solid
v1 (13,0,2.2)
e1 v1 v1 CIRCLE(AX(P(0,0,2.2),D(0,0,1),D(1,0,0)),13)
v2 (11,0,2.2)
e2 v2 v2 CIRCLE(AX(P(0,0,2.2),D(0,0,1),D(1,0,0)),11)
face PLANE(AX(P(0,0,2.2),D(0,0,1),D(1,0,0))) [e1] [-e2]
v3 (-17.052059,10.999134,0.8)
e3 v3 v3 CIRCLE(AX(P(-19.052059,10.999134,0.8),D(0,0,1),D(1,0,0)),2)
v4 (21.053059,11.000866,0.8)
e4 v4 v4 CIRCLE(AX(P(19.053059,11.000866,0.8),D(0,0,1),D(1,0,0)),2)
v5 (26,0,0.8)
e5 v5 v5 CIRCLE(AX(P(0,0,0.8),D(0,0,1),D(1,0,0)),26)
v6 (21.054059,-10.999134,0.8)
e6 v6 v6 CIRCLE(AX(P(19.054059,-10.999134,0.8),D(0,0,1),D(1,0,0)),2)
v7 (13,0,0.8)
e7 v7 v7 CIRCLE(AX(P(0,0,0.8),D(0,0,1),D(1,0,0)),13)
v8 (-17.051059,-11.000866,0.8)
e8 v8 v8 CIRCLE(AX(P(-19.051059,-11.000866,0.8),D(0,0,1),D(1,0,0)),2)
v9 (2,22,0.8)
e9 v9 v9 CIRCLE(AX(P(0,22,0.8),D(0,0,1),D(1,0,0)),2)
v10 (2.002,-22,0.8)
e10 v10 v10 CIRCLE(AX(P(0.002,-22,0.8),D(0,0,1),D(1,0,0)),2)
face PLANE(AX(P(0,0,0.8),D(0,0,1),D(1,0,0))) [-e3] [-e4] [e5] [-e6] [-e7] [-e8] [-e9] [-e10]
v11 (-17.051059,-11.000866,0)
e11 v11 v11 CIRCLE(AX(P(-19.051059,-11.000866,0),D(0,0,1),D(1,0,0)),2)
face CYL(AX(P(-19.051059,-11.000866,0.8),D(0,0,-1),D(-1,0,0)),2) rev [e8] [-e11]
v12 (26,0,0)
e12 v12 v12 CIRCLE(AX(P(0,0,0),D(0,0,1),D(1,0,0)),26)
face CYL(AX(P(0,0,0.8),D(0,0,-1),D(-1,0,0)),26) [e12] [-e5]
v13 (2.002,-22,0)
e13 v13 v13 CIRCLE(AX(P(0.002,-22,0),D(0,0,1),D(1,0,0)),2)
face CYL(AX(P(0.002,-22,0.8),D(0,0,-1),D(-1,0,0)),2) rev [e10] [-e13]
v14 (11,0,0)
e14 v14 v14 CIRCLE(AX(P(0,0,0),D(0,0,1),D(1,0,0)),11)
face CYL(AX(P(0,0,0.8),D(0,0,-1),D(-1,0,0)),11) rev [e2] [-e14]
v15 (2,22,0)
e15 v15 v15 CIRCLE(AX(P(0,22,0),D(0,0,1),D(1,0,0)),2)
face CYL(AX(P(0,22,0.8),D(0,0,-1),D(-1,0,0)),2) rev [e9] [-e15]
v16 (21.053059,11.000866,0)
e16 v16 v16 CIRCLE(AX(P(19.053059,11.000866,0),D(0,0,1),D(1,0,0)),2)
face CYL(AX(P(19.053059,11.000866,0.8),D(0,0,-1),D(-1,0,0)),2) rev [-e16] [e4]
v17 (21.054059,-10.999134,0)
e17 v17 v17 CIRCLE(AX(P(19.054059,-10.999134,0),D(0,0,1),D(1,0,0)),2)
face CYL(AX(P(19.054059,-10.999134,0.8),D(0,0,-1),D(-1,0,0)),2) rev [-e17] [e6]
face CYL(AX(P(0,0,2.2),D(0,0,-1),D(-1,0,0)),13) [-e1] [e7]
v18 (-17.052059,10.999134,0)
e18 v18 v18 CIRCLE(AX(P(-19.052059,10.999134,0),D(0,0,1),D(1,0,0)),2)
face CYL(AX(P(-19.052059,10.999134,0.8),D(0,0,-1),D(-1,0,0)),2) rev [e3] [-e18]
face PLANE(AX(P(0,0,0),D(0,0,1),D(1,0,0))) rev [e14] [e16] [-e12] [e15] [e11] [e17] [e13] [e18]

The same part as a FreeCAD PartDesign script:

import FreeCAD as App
import Part
import Sketcher
Q = App.Units.Quantity

doc = App.newDocument("Part")
body = doc.addObject("PartDesign::Body", "Body")

sketch1 = doc.addObject("Sketcher::SketchObject", "Sketch")
body.addObject(sketch1)
sketch1.AttachmentSupport = (doc.XY_Plane, [""])
sketch1.MapMode = "FlatFace"
sketch1.addGeometry([
    Part.Circle(App.Vector(0, 0, 0), App.Vector(0, 0, 1), 26),
    Part.Circle(App.Vector(-19.051059, -11.000866, 0), App.Vector(0, 0, 1), 2),
    Part.Circle(App.Vector(0.002, -22, 0), App.Vector(0, 0, 1), 2),
    Part.Circle(App.Vector(19.054059, -10.999134, 0), App.Vector(0, 0, 1), 2),
    Part.Circle(App.Vector(-19.052059, 10.999134, 0), App.Vector(0, 0, 1), 2),
    Part.Circle(App.Vector(0, 0, 0), App.Vector(0, 0, 1), 11),
    Part.Circle(App.Vector(0, 22, 0), App.Vector(0, 0, 1), 2),
    Part.Circle(App.Vector(19.053059, 11.000866, 0), App.Vector(0, 0, 1), 2),
], False)
sketch1.addConstraint([
    Sketcher.Constraint("Coincident", 0, 3, -1, 1),
    Sketcher.Constraint("Coincident", 5, 3, -1, 1),
    Sketcher.Constraint("Equal", 1, 2),
    Sketcher.Constraint("Equal", 2, 3),
    Sketcher.Constraint("Equal", 3, 4),
    Sketcher.Constraint("Equal", 4, 6),
    Sketcher.Constraint("Equal", 6, 7),
    Sketcher.Constraint("PointOnObject", 6, 3, -2),
    Sketcher.Constraint("Diameter", 0, Q("52 mm")),
    Sketcher.Constraint("Diameter", 1, Q("4 mm")),
    Sketcher.Constraint("Diameter", 5, Q("22 mm")),
    Sketcher.Constraint("DistanceY", 2, 3, -1, 1, Q("22 mm")),
    Sketcher.Constraint("DistanceY", -1, 1, 6, 3, Q("22 mm")),
    Sketcher.Constraint("DistanceY", 1, 3, 4, 3, Q("22 mm")),
    Sketcher.Constraint("DistanceY", 3, 3, 7, 3, Q("22 mm")),
    Sketcher.Constraint("DistanceX", -1, 1, 2, 3, Q("0.002 mm")),
    Sketcher.Constraint("DistanceX", 4, 3, 1, 3, Q("0.001 mm")),
    Sketcher.Constraint("DistanceX", 7, 3, 3, 3, Q("0.001 mm")),
    Sketcher.Constraint("DistanceX", 1, 3, -1, 1, Q("19.051059 mm")),
    Sketcher.Constraint("DistanceX", -1, 1, 3, 3, Q("19.054059 mm")),
    Sketcher.Constraint("DistanceY", 1, 3, -1, 1, Q("11.000866 mm")),
    Sketcher.Constraint("DistanceY", 3, 3, -1, 1, Q("10.999134 mm")),
])
pad1 = doc.addObject("PartDesign::Pad", "Pad")
body.addObject(pad1)
pad1.Profile = sketch1
pad1.Length = 0.8

sketch2 = doc.addObject("Sketcher::SketchObject", "Sketch001")
body.addObject(sketch2)
sketch2.AttachmentSupport = (doc.XY_Plane, [""])
sketch2.MapMode = "FlatFace"
sketch2.AttachmentOffset = App.Placement(App.Vector(0, 0, 0.8), App.Rotation())
sketch2.addGeometry([
    Part.Circle(App.Vector(0, 0, 0), App.Vector(0, 0, 1), 13),
    Part.Circle(App.Vector(0, 0, 0), App.Vector(0, 0, 1), 11),
], False)
sketch2.addConstraint([
    Sketcher.Constraint("Coincident", 0, 3, -1, 1),
    Sketcher.Constraint("Coincident", 1, 3, -1, 1),
    Sketcher.Constraint("Diameter", 0, Q("26 mm")),
    Sketcher.Constraint("Diameter", 1, Q("22 mm")),
])
pad2 = doc.addObject("PartDesign::Pad", "Pad001")
body.addObject(pad2)
pad2.Profile = sketch2
pad2.Length = 1.4

doc.recompute()
